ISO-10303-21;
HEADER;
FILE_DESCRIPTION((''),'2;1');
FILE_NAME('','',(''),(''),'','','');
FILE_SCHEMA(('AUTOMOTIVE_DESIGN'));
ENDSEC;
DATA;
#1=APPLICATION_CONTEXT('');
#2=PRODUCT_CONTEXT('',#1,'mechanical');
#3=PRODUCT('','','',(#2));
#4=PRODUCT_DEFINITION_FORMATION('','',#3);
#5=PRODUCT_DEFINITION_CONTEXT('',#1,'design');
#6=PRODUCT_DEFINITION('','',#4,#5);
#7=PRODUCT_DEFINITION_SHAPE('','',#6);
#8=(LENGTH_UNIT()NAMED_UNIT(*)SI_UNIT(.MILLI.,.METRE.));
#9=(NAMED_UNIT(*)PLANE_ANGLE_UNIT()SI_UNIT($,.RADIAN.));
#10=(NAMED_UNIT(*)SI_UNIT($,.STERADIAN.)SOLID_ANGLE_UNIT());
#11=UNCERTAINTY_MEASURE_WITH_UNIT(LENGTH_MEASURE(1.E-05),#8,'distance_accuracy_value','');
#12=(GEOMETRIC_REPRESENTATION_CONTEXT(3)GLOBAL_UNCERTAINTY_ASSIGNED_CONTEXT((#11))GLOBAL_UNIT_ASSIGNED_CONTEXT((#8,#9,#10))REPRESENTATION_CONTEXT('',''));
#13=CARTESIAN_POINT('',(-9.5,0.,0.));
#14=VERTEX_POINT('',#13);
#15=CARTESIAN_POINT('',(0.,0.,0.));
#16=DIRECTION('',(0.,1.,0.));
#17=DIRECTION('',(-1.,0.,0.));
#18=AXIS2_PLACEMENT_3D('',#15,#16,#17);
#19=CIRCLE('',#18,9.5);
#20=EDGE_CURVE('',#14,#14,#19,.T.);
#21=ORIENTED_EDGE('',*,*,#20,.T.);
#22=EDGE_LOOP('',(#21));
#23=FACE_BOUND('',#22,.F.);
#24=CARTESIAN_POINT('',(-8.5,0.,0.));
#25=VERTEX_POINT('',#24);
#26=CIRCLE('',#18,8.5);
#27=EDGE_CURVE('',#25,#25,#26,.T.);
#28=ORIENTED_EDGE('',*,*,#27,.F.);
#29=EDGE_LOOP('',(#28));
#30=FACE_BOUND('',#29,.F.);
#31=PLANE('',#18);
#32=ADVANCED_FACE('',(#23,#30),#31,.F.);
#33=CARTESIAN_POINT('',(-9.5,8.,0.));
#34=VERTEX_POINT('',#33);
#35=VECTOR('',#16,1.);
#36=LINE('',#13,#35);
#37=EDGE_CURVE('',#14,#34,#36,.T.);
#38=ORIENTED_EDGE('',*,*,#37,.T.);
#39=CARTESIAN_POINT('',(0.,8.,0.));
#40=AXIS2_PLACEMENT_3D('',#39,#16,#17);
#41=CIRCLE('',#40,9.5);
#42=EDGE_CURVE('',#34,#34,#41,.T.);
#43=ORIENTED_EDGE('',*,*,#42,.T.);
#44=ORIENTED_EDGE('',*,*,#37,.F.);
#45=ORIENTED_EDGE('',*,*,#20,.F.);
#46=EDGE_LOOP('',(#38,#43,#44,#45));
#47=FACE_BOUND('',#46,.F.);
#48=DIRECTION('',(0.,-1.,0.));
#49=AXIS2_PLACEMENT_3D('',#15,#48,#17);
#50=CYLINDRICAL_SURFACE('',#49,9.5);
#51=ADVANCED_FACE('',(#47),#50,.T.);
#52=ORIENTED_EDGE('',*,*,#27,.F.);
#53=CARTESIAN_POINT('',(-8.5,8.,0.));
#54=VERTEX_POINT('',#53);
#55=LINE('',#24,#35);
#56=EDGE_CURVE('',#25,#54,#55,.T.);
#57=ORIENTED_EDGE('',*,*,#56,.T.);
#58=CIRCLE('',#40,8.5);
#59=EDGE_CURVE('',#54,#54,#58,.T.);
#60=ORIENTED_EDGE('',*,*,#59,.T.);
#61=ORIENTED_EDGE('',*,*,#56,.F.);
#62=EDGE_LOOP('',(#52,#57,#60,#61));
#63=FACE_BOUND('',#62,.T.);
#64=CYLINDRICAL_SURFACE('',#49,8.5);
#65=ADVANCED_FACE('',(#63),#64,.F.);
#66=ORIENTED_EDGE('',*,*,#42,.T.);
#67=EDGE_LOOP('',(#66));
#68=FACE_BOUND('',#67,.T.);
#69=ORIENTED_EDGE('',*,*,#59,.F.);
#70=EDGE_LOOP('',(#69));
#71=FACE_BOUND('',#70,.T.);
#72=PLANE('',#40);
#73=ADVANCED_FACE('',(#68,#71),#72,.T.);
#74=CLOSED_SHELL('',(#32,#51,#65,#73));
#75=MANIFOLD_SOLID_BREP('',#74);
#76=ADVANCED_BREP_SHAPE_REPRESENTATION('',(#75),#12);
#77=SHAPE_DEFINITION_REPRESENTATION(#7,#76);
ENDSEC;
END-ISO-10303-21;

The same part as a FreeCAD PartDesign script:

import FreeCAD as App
import Part
import Sketcher
from FreeCAD import Vector

doc = App.newDocument("Part")
body = doc.addObject("PartDesign::Body", "Body")

# Sketch on XZ plane
sketch1 = body.newObject("Sketcher::SketchObject", "Sketch")
sketch1.AttachmentSupport = (doc.getObject("XZ_Plane"), [""])
sketch1.MapMode = "FlatFace"
sketch1.addGeometry(Part.Circle(Vector(0, 0, 0), Vector(0, 0, 1), 10), False)
sketch1.addGeometry(Part.Circle(Vector(0, 0, 0), Vector(0, 0, 1), 8), False)
sketch1.addConstraint(Sketcher.Constraint("Coincident", 0, 3, -1, 1))
sketch1.addConstraint(Sketcher.Constraint("Coincident", 1, 3, -1, 1))
sketch1.addConstraint(Sketcher.Constraint("Diameter", 1, 17.0))
sketch1.addConstraint(Sketcher.Constraint("Diameter", 0, 19.0))
pad1 = body.newObject("PartDesign::Pad", "Pad")
pad1.Profile = sketch1
pad1.Length = 8
pad1.Reversed = True

doc.recompute()
